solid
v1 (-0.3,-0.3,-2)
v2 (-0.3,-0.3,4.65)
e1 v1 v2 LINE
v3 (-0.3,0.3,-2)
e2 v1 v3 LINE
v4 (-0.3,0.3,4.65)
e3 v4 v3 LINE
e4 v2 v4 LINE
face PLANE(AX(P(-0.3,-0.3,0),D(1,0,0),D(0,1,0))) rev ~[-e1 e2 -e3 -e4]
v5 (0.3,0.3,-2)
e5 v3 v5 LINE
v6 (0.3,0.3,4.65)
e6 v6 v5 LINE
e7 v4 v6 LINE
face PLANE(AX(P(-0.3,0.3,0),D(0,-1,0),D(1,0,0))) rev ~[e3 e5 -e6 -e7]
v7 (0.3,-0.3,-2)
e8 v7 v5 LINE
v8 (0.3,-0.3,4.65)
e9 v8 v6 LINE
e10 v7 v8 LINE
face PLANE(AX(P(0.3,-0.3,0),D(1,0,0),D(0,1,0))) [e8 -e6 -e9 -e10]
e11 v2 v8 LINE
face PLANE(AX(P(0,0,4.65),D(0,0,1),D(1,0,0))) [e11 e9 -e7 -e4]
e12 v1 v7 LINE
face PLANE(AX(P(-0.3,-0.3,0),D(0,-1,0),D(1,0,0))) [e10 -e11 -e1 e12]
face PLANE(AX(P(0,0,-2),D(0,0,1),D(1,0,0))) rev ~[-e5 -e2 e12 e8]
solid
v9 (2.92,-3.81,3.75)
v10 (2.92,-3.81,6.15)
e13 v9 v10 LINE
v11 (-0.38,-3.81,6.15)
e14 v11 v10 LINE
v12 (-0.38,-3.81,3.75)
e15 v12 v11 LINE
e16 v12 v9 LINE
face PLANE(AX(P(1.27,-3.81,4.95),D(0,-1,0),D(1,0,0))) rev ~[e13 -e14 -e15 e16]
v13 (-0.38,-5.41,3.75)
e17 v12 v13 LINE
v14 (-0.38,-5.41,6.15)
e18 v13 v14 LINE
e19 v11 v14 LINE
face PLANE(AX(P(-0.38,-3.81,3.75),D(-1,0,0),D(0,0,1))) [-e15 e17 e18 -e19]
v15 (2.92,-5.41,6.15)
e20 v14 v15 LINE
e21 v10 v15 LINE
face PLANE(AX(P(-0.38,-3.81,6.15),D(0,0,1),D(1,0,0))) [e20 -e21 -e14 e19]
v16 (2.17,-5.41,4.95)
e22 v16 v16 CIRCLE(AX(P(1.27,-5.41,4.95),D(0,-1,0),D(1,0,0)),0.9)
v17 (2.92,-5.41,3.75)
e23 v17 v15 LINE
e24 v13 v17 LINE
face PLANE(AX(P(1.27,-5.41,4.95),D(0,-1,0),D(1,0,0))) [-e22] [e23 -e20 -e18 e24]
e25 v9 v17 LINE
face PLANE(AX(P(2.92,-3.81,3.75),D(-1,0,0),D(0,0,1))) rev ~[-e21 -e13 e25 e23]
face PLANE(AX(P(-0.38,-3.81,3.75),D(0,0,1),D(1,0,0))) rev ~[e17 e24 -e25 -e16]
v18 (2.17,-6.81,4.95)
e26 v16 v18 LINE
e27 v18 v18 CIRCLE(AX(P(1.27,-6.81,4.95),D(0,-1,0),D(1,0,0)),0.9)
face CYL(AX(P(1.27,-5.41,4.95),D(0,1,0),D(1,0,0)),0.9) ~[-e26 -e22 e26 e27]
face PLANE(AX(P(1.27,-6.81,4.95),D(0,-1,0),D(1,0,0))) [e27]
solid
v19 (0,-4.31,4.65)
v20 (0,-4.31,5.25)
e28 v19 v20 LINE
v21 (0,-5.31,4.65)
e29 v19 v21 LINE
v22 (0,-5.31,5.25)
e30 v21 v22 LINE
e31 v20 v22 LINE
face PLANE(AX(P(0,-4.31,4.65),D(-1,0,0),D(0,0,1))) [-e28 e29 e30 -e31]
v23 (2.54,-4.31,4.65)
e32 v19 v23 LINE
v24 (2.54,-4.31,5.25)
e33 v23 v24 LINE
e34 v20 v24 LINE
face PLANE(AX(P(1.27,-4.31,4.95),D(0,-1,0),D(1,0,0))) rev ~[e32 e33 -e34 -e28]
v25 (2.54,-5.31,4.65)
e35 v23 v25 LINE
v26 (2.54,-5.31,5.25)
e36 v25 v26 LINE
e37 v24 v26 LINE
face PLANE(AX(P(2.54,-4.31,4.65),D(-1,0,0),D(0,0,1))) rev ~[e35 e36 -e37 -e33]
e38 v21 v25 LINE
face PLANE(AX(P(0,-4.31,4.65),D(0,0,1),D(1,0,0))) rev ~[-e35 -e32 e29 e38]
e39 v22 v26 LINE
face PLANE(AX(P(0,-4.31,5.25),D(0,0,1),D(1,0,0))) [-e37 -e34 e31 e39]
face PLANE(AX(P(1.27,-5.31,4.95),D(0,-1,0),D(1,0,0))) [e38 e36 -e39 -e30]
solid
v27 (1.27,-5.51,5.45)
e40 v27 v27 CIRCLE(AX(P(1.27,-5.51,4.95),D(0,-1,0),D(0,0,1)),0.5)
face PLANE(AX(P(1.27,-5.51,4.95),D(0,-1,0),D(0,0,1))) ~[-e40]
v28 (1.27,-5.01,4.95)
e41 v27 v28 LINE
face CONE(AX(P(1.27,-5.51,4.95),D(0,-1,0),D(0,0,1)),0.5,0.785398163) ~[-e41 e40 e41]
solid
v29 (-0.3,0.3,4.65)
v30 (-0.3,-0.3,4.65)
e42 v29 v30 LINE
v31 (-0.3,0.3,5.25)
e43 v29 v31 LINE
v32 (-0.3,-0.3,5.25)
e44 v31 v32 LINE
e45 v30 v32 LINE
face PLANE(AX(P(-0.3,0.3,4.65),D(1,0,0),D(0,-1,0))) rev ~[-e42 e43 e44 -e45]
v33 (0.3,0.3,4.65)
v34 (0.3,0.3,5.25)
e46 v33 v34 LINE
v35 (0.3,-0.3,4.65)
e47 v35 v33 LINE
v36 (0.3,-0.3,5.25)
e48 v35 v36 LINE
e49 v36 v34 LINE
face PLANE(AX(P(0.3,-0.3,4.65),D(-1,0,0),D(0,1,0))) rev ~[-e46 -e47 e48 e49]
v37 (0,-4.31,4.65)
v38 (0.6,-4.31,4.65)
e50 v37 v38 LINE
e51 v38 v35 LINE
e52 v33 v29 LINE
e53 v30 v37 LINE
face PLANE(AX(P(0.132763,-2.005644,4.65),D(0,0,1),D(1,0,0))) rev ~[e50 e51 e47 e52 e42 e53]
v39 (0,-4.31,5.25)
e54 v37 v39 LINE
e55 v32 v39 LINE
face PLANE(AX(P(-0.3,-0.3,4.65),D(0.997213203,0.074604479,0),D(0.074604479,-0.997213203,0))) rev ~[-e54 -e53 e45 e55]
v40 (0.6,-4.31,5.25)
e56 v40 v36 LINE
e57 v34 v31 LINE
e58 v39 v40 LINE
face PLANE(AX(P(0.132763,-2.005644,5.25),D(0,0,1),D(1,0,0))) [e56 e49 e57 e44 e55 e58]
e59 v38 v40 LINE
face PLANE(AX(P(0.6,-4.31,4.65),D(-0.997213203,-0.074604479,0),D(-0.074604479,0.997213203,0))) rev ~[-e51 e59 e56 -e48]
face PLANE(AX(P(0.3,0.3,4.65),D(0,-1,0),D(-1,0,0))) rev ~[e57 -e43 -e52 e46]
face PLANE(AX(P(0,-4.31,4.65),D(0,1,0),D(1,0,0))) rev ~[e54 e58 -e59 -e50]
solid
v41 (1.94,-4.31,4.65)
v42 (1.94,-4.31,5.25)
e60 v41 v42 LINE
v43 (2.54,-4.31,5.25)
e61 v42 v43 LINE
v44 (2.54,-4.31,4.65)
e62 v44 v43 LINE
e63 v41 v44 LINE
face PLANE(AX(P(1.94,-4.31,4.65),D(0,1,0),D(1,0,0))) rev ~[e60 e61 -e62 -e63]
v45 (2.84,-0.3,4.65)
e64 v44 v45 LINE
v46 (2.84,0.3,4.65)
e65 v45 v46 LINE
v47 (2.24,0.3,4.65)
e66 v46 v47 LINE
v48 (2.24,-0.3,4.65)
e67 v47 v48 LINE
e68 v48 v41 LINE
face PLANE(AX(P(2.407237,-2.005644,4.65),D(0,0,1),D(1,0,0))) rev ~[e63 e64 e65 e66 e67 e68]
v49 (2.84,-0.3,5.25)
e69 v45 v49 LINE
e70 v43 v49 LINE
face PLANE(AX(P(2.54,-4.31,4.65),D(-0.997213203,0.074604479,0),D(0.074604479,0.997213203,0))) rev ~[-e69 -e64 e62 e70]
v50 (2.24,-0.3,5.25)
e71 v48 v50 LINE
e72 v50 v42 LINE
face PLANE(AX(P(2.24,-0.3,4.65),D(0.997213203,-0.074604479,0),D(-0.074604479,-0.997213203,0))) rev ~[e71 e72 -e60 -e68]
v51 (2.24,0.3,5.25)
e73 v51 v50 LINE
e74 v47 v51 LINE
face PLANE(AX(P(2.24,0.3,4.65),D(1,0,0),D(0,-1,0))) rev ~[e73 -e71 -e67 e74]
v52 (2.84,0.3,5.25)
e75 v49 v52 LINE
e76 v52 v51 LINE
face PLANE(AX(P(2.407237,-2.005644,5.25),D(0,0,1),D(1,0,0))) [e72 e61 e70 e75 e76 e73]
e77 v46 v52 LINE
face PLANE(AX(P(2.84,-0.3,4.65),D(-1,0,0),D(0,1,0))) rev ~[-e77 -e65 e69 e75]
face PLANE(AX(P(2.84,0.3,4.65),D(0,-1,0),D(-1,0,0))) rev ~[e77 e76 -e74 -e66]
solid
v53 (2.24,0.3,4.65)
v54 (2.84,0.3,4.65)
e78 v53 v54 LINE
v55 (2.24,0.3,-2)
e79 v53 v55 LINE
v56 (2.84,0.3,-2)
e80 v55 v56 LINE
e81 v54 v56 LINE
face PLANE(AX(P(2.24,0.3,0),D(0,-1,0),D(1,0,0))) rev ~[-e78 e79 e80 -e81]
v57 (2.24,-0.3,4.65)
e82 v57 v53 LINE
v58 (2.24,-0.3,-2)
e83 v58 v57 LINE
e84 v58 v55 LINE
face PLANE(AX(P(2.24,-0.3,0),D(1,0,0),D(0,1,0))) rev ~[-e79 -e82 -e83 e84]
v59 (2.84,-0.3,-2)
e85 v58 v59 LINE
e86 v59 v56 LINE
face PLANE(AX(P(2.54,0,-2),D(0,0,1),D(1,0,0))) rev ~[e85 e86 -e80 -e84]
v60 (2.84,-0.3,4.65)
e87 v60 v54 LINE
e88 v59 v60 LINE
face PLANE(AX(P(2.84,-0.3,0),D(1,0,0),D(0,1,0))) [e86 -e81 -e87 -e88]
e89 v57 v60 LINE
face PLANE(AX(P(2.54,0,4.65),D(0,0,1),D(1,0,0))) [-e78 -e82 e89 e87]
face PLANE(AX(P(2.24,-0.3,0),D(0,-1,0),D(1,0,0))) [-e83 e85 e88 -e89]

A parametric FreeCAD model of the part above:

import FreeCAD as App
import Part
import Sketcher

V = App.Vector

doc = App.newDocument("Part")
body = doc.addObject("PartDesign::Body", "Body")
body.AllowCompound = True

sketch1 = body.newObject("Sketcher::SketchObject", "Sketch")
sketch1.AttachmentSupport = (doc.getObject("XY_Plane"), [""])
sketch1.MapMode = "FlatFace"
sketch1.addGeometry([
    Part.LineSegment(V(-0.3, 0.3, 0), V(-0.3, -0.3, 0)),
    Part.LineSegment(V(-0.3, -0.3, 0), V(0.3, -0.3, 0)),
    Part.LineSegment(V(0.3, -0.3, 0), V(0.3, 0.3, 0)),
    Part.LineSegment(V(0.3, 0.3, 0), V(-0.3, 0.3, 0)),
    Part.LineSegment(V(2.2, 0.3, 0), V(2.2, -0.3, 0)),
    Part.LineSegment(V(2.2, -0.3, 0), V(2.8, -0.3, 0)),
    Part.LineSegment(V(2.8, -0.3, 0), V(2.8, 0.3, 0)),
    Part.LineSegment(V(2.8, 0.3, 0), V(2.2, 0.3, 0)),
], False)
sketch1.addConstraint([
    Sketcher.Constraint("Coincident", 0, 2, 1, 1),
    Sketcher.Constraint("Coincident", 1, 2, 2, 1),
    Sketcher.Constraint("Coincident", 2, 2, 3, 1),
    Sketcher.Constraint("Coincident", 3, 2, 0, 1),
    Sketcher.Constraint("Coincident", 4, 2, 5, 1),
    Sketcher.Constraint("Coincident", 5, 2, 6, 1),
    Sketcher.Constraint("Coincident", 6, 2, 7, 1),
    Sketcher.Constraint("Coincident", 7, 2, 4, 1),
    Sketcher.Constraint("Vertical", 0),
    Sketcher.Constraint("Horizontal", 1),
    Sketcher.Constraint("Vertical", 2),
    Sketcher.Constraint("Horizontal", 3),
    Sketcher.Constraint("Vertical", 4),
    Sketcher.Constraint("Horizontal", 5),
    Sketcher.Constraint("Vertical", 6),
    Sketcher.Constraint("Horizontal", 7),
    Sketcher.Constraint("Symmetric", 0, 2, 2, 2, -1, 1),
    Sketcher.Constraint("Horizontal", 1, 2, 4, 2),
    Sketcher.Constraint("Horizontal", 3, 2, 6, 2),
    Sketcher.Constraint("Equal", 3, 5),
    Sketcher.Constraint("Equal", 7, 0),
    Sketcher.Constraint("DistanceX", 1, 1, 1, 2, 0.6),
    Sketcher.Constraint("DistanceX", -1, 1, 4, 2, 2.24),
])
pad1 = body.newObject("PartDesign::Pad", "Pad")
pad1.Profile = sketch1
pad1.Type = "TwoLengths"
pad1.Length = 4.65
pad1.Length2 = 2
body2 = doc.addObject("PartDesign::Body", "Body001")
body2.AllowCompound = True

sketch2 = body2.newObject("Sketcher::SketchObject", "Sketch001")
sketch2.AttachmentSupport = (doc.getObject("XY_Plane001"), [""])
sketch2.MapMode = "FlatFace"
sketch2.AttachmentOffset = App.Placement(V(0, 0, 4.65), App.Rotation())
sketch2.addGeometry([
    Part.LineSegment(V(0.3, 0.3, 0), V(-0.3, 0.3, 0)),
    Part.LineSegment(V(-0.3, 0.3, 0), V(-0.3, -0.3, 0)),
    Part.LineSegment(V(-0.3, -0.3, 0), V(0, -4.3, 0)),
    Part.LineSegment(V(0, -4.3, 0), V(0.6, -4.3, 0)),
    Part.LineSegment(V(0.6, -4.3, 0), V(0.3, -0.3, 0)),
    Part.LineSegment(V(0.3, -0.3, 0), V(0.3, 0.3, 0)),
    Part.LineSegment(V(2.8, 0.3, 0), V(2.2, 0.3, 0)),
    Part.LineSegment(V(2.2, 0.3, 0), V(2.2, -0.3, 0)),
    Part.LineSegment(V(2.2, -0.3, 0), V(1.9, -4.3, 0)),
    Part.LineSegment(V(1.9, -4.3, 0), V(2.5, -4.3, 0)),
    Part.LineSegment(V(2.5, -4.3, 0), V(2.8, -0.3, 0)),
    Part.LineSegment(V(2.8, -0.3, 0), V(2.8, 0.3, 0)),
], False)
sketch2.addConstraint([
    Sketcher.Constraint("Coincident", 0, 2, 1, 1),
    Sketcher.Constraint("Coincident", 1, 2, 2, 1),
    Sketcher.Constraint("Coincident", 2, 2, 3, 1),
    Sketcher.Constraint("Coincident", 3, 2, 4, 1),
    Sketcher.Constraint("Coincident", 4, 2, 5, 1),
    Sketcher.Constraint("Coincident", 5, 2, 0, 1),
    Sketcher.Constraint("Coincident", 6, 2, 7, 1),
    Sketcher.Constraint("Coincident", 7, 2, 8, 1),
    Sketcher.Constraint("Coincident", 8, 2, 9, 1),
    Sketcher.Constraint("Coincident", 9, 2, 10, 1),
    Sketcher.Constraint("Coincident", 10, 2, 11, 1),
    Sketcher.Constraint("Coincident", 11, 2, 6, 1),
    Sketcher.Constraint("Horizontal", 0),
    Sketcher.Constraint("Vertical", 1),
    Sketcher.Constraint("Horizontal", 3),
    Sketcher.Constraint("Vertical", 5),
    Sketcher.Constraint("Horizontal", 6),
    Sketcher.Constraint("Vertical", 7),
    Sketcher.Constraint("Horizontal", 9),
    Sketcher.Constraint("Vertical", 11),
    Sketcher.Constraint("Symmetric", 0, 2, 4, 2, -1, 1),
    Sketcher.Constraint("PointOnObject", 2, 2, -2),
    Sketcher.Constraint("Parallel", 2, 4),
    Sketcher.Constraint("Parallel", 8, 10),
    Sketcher.Constraint("Horizontal", 1, 2, 4, 2),
    Sketcher.Constraint("Horizontal", 5, 2, 6, 2),
    Sketcher.Constraint("Horizontal", 4, 2, 7, 2),
    Sketcher.Constraint("Horizontal", 3, 2, 8, 2),
    Sketcher.Constraint("Horizontal", 7, 2, 10, 2),
    Sketcher.Constraint("Equal", 3, 6),
    Sketcher.Constraint("Equal", 9, 1),
    Sketcher.Constraint("Equal", 4, 8),
    Sketcher.Constraint("DistanceX", 0, 2, 0, 1, 0.6),
    Sketcher.Constraint("DistanceY", 2, 2, -1, 1, 4.31),
    Sketcher.Constraint("DistanceX", -1, 1, 6, 2, 2.24),
])
pad2 = body2.newObject("PartDesign::Pad", "Pad001")
pad2.Profile = sketch2
pad2.Length = 0.6
body3 = doc.addObject("PartDesign::Body", "Body002")

sketch3 = body3.newObject("Sketcher::SketchObject", "Sketch002")
sketch3.AttachmentSupport = (doc.getObject("XZ_Plane002"), [""])
sketch3.MapMode = "FlatFace"
sketch3.AttachmentOffset = App.Placement(V(0, 0, 4.31), App.Rotation())
sketch3.addGeometry([
    Part.LineSegment(V(0, 5.2, 0), V(0, 4.7, 0)),
    Part.LineSegment(V(0, 4.7, 0), V(2.5, 4.7, 0)),
    Part.LineSegment(V(2.5, 4.7, 0), V(2.5, 5.2, 0)),
    Part.LineSegment(V(2.5, 5.2, 0), V(0, 5.2, 0)),
], False)
sketch3.addConstraint([
    Sketcher.Constraint("Coincident", 0, 2, 1, 1),
    Sketcher.Constraint("Coincident", 1, 2, 2, 1),
    Sketcher.Constraint("Coincident", 2, 2, 3, 1),
    Sketcher.Constraint("Coincident", 3, 2, 0, 1),
    Sketcher.Constraint("Vertical", 0),
    Sketcher.Constraint("Horizontal", 1),
    Sketcher.Constraint("Vertical", 2),
    Sketcher.Constraint("Horizontal", 3),
    Sketcher.Constraint("PointOnObject", 0, 2, -2),
    Sketcher.Constraint("DistanceY", 0, 2, 0, 1, 0.6),
    Sketcher.Constraint("DistanceX", 1, 1, 1, 2, 2.54),
    Sketcher.Constraint("DistanceY", -1, 1, 0, 2, 4.65),
])
pad3 = body3.newObject("PartDesign::Pad", "Pad002")
pad3.Profile = sketch3
pad3.Length = 1
body4 = doc.addObject("PartDesign::Body", "Body003")

sketch4 = body4.newObject("Sketcher::SketchObject", "Sketch003")
sketch4.AttachmentSupport = (doc.getObject("YZ_Plane003"), [""])
sketch4.MapMode = "FlatFace"
sketch4.AttachmentOffset = App.Placement(V(0, 0, 1.27), App.Rotation())
sketch4.addGeometry([
    Part.LineSegment(V(-5.5, 5, 0), V(-5, 5, 0)),
    Part.LineSegment(V(-5, 5, 0), V(-5.5, 5.5, 0)),
    Part.LineSegment(V(-5.5, 5.5, 0), V(-5.5, 5, 0)),
], False)
sketch4.addGeometry(Part.LineSegment(V(-5, 5, 0), V(-5.5, 5, 0)), True)
sketch4.addConstraint([
    Sketcher.Constraint("Coincident", 0, 2, 1, 1),
    Sketcher.Constraint("Coincident", 1, 2, 2, 1),
    Sketcher.Constraint("Coincident", 2, 2, 0, 1),
    Sketcher.Constraint("Horizontal", 0),
    Sketcher.Constraint("Vertical", 2),
    Sketcher.Constraint("Horizontal", 3),
    Sketcher.Constraint("Coincident", 3, 1, 0, 2),
    Sketcher.Constraint("Vertical", 1, 2, 3, 2),
    Sketcher.Constraint("Equal", 3, 2),
    Sketcher.Constraint("DistanceX", 0, 1, 0, 2, 0.5),
    Sketcher.Constraint("DistanceX", 0, 2, -1, 1, 5.01),
    Sketcher.Constraint("DistanceY", -1, 1, 0, 2, 4.95),
])
revolution = body4.newObject("PartDesign::Revolution", "Revolution")
revolution.Profile = sketch4
revolution.ReferenceAxis = (sketch4, ["Axis0"])
revolution.Angle = 360
body5 = doc.addObject("PartDesign::Body", "Body004")

sketch5 = body5.newObject("Sketcher::SketchObject", "Sketch004")
sketch5.AttachmentSupport = (doc.getObject("XZ_Plane004"), [""])
sketch5.MapMode = "FlatFace"
sketch5.AttachmentOffset = App.Placement(V(0, 0, 3.81), App.Rotation())
sketch5.addGeometry([
    Part.LineSegment(V(-0.4, 6.2, 0), V(-0.4, 3.8, 0)),
    Part.LineSegment(V(-0.4, 3.8, 0), V(2.9, 3.8, 0)),
    Part.LineSegment(V(2.9, 3.8, 0), V(2.9, 6.2, 0)),
    Part.LineSegment(V(2.9, 6.2, 0), V(-0.4, 6.2, 0)),
], False)
sketch5.addConstraint([
    Sketcher.Constraint("Coincident", 0, 2, 1, 1),
    Sketcher.Constraint("Coincident", 1, 2, 2, 1),
    Sketcher.Constraint("Coincident", 2, 2, 3, 1),
    Sketcher.Constraint("Coincident", 3, 2, 0, 1),
    Sketcher.Constraint("Vertical", 0),
    Sketcher.Constraint("Horizontal", 1),
    Sketcher.Constraint("Vertical", 2),
    Sketcher.Constraint("Horizontal", 3),
    Sketcher.Constraint("DistanceX", 1, 1, 1, 2, 3.3),
    Sketcher.Constraint("DistanceY", 0, 2, 0, 1, 2.4),
    Sketcher.Constraint("DistanceX", 0, 2, -1, 1, 0.38),
    Sketcher.Constraint("DistanceY", -1, 1, 0, 2, 3.75),
])
pad4 = body5.newObject("PartDesign::Pad", "Pad003")
pad4.Profile = sketch5
pad4.Length = 1.6

sketch6 = body5.newObject("Sketcher::SketchObject", "Sketch005")
sketch6.AttachmentSupport = (doc.getObject("XZ_Plane004"), [""])
sketch6.MapMode = "FlatFace"
sketch6.AttachmentOffset = App.Placement(V(0, 0, 5.41), App.Rotation())
sketch6.addGeometry(Part.Circle(V(1.3, 5, 0), V(0, 0, 1), 0.9), False)
sketch6.addConstraint([
    Sketcher.Constraint("Diameter", 0, 1.8),
    Sketcher.Constraint("DistanceX", -1, 1, 0, 3, 1.27),
    Sketcher.Constraint("DistanceY", -1, 1, 0, 3, 4.95),
])
pad5 = body5.newObject("PartDesign::Pad", "Pad004")
pad5.Profile = sketch6
pad5.Length = 1.4

doc.recompute()
